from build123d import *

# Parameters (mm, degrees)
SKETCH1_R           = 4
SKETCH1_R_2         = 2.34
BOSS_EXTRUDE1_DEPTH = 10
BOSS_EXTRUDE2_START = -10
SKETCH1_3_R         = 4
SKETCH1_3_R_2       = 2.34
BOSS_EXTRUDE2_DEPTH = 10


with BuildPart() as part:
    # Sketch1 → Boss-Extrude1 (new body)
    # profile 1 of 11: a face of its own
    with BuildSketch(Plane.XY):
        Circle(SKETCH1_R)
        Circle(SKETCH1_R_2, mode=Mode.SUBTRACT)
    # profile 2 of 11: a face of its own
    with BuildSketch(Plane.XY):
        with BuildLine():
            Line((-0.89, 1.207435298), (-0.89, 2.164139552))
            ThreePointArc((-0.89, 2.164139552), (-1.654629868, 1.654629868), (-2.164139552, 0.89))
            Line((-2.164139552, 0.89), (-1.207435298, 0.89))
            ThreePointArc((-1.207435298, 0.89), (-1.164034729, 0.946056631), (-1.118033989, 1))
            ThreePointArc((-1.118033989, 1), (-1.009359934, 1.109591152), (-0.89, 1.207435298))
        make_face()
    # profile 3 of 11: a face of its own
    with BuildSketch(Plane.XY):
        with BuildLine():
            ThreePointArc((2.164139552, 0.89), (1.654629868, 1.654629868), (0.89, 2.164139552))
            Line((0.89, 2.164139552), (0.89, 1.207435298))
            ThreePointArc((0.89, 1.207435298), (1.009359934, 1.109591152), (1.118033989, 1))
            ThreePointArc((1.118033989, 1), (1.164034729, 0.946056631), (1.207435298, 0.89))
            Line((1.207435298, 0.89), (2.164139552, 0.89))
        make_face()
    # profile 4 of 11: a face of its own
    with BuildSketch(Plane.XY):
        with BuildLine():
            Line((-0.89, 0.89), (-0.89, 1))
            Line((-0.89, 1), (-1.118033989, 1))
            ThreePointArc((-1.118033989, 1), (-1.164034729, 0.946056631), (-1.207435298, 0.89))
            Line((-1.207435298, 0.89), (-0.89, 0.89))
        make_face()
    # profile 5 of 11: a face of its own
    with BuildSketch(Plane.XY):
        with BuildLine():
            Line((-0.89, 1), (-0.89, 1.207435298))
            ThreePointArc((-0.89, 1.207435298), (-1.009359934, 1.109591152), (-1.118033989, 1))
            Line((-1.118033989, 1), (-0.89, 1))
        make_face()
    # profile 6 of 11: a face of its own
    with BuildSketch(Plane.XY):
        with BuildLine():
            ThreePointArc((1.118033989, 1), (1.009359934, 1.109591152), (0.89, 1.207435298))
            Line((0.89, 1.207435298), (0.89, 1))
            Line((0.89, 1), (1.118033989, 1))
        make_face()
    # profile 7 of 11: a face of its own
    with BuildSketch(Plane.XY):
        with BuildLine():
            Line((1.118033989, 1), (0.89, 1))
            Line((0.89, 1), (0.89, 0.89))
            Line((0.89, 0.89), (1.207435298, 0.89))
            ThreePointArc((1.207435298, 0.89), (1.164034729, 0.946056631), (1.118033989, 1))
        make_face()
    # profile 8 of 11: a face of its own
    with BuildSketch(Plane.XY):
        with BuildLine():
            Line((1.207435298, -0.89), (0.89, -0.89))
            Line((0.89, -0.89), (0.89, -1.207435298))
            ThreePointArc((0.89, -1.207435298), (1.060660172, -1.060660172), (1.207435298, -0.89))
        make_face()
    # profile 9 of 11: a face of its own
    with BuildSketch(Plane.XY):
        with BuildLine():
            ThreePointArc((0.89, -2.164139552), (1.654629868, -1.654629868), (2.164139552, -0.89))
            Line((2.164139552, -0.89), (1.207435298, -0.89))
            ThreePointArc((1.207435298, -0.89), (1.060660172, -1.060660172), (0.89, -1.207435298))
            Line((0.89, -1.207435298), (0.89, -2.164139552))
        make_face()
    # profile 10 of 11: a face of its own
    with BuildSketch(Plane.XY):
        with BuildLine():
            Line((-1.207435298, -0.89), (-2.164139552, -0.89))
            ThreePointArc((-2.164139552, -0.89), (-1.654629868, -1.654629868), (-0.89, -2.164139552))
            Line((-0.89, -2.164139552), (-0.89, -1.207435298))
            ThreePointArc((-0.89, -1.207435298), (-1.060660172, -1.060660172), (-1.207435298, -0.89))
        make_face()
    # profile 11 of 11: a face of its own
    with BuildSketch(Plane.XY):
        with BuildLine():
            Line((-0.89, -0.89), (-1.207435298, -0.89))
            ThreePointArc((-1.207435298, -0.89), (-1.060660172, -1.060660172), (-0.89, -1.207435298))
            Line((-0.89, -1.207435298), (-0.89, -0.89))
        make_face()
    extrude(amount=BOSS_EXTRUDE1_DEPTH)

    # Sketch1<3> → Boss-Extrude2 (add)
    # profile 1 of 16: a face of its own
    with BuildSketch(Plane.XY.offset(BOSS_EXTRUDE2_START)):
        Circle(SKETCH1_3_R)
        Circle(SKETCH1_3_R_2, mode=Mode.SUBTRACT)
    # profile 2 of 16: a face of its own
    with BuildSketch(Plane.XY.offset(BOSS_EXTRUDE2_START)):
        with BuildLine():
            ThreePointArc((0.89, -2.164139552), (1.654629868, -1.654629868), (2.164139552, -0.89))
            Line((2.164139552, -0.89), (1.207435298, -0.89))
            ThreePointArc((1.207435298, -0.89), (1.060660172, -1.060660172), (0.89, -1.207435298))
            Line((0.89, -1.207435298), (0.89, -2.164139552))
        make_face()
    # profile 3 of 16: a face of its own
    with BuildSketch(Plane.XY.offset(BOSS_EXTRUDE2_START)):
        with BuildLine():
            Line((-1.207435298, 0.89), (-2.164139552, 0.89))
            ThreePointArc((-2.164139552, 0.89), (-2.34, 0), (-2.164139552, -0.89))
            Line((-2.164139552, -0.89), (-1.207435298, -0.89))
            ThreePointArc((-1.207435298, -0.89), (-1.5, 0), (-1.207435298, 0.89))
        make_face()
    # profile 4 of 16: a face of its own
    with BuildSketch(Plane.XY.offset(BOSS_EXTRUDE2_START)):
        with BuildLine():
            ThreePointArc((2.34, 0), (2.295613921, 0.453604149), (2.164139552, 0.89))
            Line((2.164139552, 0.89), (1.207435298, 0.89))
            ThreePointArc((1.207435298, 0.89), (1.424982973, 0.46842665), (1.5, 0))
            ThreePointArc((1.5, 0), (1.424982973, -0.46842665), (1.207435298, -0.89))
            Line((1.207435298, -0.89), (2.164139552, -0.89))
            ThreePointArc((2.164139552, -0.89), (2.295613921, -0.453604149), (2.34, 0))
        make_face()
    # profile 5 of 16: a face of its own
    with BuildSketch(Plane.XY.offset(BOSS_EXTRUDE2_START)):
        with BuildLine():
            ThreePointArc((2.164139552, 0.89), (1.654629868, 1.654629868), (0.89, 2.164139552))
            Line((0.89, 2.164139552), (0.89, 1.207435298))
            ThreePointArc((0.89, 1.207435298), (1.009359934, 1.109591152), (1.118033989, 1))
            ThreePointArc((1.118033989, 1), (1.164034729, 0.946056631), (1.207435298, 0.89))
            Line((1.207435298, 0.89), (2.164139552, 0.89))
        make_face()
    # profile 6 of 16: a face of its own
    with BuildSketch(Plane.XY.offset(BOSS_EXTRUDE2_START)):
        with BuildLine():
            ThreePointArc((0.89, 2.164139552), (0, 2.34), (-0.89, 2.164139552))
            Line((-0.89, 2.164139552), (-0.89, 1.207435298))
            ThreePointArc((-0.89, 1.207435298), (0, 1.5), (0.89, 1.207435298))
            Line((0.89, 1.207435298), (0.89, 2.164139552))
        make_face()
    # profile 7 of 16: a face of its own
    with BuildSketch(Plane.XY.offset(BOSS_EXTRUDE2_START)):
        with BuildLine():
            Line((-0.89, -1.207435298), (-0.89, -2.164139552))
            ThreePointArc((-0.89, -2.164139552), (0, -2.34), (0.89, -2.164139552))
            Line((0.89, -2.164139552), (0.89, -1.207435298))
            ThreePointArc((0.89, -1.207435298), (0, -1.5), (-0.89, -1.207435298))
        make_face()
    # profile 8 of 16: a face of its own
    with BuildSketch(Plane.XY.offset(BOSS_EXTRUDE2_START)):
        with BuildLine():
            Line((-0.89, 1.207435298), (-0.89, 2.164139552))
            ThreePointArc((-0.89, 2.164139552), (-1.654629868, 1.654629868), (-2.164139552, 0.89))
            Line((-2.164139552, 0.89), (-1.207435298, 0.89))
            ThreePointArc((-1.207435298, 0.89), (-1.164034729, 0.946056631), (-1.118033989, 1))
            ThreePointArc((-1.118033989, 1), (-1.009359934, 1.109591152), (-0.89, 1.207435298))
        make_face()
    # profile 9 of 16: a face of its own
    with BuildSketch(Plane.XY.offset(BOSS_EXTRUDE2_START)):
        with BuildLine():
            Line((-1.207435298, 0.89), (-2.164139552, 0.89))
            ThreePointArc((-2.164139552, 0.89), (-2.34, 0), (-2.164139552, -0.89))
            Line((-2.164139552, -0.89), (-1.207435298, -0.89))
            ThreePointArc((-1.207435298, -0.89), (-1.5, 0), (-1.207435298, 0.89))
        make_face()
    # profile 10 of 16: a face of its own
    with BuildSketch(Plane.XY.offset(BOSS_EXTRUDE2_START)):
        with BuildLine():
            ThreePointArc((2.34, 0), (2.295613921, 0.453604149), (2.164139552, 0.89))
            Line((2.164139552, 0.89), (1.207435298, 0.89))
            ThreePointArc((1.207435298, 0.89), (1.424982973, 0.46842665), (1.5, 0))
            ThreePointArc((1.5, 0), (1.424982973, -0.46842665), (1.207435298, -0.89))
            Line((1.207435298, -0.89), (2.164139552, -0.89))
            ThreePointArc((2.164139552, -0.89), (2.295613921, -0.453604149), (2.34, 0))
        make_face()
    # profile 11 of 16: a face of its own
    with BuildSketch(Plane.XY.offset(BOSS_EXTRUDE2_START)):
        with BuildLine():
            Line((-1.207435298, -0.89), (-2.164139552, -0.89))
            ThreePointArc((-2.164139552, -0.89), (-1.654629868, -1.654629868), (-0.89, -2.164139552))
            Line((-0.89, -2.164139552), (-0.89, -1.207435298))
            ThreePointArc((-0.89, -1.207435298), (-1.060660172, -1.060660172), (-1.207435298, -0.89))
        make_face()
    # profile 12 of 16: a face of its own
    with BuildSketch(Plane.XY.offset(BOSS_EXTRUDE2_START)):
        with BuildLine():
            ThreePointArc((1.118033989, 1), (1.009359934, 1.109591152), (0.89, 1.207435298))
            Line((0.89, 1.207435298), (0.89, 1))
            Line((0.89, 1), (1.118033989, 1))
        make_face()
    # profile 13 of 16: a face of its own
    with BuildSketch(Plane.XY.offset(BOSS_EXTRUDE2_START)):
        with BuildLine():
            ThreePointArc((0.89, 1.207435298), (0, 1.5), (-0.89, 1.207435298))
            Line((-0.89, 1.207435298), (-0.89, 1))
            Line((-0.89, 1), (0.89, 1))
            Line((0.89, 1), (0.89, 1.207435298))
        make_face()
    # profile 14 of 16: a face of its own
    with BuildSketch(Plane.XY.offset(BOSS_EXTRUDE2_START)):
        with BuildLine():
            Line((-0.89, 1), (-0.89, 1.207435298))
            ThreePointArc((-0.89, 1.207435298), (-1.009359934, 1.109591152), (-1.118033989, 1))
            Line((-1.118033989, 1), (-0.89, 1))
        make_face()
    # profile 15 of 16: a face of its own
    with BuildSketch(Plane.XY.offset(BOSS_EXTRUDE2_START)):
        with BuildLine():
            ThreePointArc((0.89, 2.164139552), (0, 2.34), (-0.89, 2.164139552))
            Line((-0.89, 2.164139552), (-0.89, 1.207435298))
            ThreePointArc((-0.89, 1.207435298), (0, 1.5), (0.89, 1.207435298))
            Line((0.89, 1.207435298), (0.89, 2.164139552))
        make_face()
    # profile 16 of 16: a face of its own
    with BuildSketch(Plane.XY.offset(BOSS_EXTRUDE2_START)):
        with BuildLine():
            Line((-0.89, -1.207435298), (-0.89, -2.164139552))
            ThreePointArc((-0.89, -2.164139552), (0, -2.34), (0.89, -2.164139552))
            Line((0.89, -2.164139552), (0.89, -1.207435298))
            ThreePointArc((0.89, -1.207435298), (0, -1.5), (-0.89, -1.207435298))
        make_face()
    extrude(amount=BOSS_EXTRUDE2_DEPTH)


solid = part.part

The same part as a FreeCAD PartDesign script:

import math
import FreeCAD as App
import Part
import Sketcher
from FreeCAD import Vector

doc = App.newDocument("Part")
body = doc.addObject("PartDesign::Body", "Body")

# Sketch on XY plane
sketch1 = body.newObject("Sketcher::SketchObject", "Sketch")
sketch1.AttachmentSupport = (doc.getObject("XY_Plane"), [""])
sketch1.MapMode = "FlatFace"
sketch1.addGeometry([
    Part.Circle(Vector(0, 0, 0), Vector(0, 0, 1), 4),  # 0
    Part.ArcOfCircle(Part.Circle(Vector(0, 0, 0), Vector(0, 0, 1), 2.3), math.radians(-22), math.radians(22)),  # 1
    Part.LineSegment(Vector(2.2, -0.9, 0), Vector(0.9, -0.9, 0)),  # 2
    Part.LineSegment(Vector(0.9, -0.9, 0), Vector(0.9, -2.2, 0)),  # 3
    Part.ArcOfCircle(Part.Circle(Vector(0, 0, 0), Vector(0, 0, 1), 2.3), math.radians(-112), math.radians(-68)),  # 4
    Part.LineSegment(Vector(-0.9, -2.2, 0), Vector(-0.9, -0.9, 0)),  # 5
    Part.LineSegment(Vector(-0.9, -0.9, 0), Vector(-2.2, -0.9, 0)),  # 6
    Part.ArcOfCircle(Part.Circle(Vector(0, 0, 0), Vector(0, 0, 1), 2.3), math.radians(158), math.radians(202)),  # 7
    Part.LineSegment(Vector(-2.2, 0.9, 0), Vector(-0.9, 0.9, 0)),  # 8
    Part.LineSegment(Vector(-0.9, 0.9, 0), Vector(-0.9, 2.2, 0)),  # 9
    Part.ArcOfCircle(Part.Circle(Vector(0, 0, 0), Vector(0, 0, 1), 2.3), math.radians(68), math.radians(112)),  # 10
    Part.LineSegment(Vector(0.9, 2.2, 0), Vector(0.9, 0.9, 0)),  # 11
    Part.LineSegment(Vector(0.9, 0.9, 0), Vector(2.2, 0.9, 0)),  # 12
], False)
sketch1.addConstraint([
    Sketcher.Constraint("Coincident", 1, 1, 2, 1),
    Sketcher.Constraint("Coincident", 2, 2, 3, 1),
    Sketcher.Constraint("Coincident", 3, 2, 4, 2),
    Sketcher.Constraint("Coincident", 4, 1, 5, 1),
    Sketcher.Constraint("Coincident", 5, 2, 6, 1),
    Sketcher.Constraint("Coincident", 6, 2, 7, 2),
    Sketcher.Constraint("Coincident", 7, 1, 8, 1),
    Sketcher.Constraint("Coincident", 8, 2, 9, 1),
    Sketcher.Constraint("Coincident", 9, 2, 10, 2),
    Sketcher.Constraint("Coincident", 10, 1, 11, 1),
    Sketcher.Constraint("Coincident", 11, 2, 12, 1),
    Sketcher.Constraint("Coincident", 12, 2, 1, 2),
    Sketcher.Constraint("Horizontal", 2),
    Sketcher.Constraint("Vertical", 3),
    Sketcher.Constraint("Vertical", 5),
    Sketcher.Constraint("Horizontal", 6),
    Sketcher.Constraint("Horizontal", 8),
    Sketcher.Constraint("Vertical", 9),
    Sketcher.Constraint("Vertical", 11),
    Sketcher.Constraint("Horizontal", 12),
    Sketcher.Constraint("Coincident", 0, 3, -1, 1),
    Sketcher.Constraint("Coincident", 1, 3, -1, 1),
    Sketcher.Constraint("Coincident", 4, 3, -1, 1),
    Sketcher.Constraint("Coincident", 7, 3, -1, 1),
    Sketcher.Constraint("Coincident", 10, 3, -1, 1),
    Sketcher.Constraint("Equal", 1, 4),
    Sketcher.Constraint("Equal", 4, 7),
    Sketcher.Constraint("Equal", 7, 10),
    Sketcher.Constraint("Symmetric", 2, 2, 8, 2, -1, 1),
    Sketcher.Constraint("Symmetric", 5, 2, 11, 2, -1, 1),
    Sketcher.Constraint("Symmetric", 2, 2, 5, 2, -2),
    Sketcher.Constraint("Equal", 12, 3),
    Sketcher.Constraint("Diameter", 0, 8.0),
    Sketcher.Constraint("Radius", 1, 2.34),
    Sketcher.Constraint("DistanceY", 1, 1, -1, 1, 0.89),
])
pad1 = body.newObject("PartDesign::Pad", "Pad")
pad1.Profile = sketch1
pad1.Length = 10

# Sketch on XY plane
sketch2 = body.newObject("Sketcher::SketchObject", "Sketch001")
sketch2.AttachmentSupport = (doc.getObject("XY_Plane"), [""])
sketch2.MapMode = "FlatFace"
sketch2.AttachmentOffset = App.Placement(Vector(0, 0, -10), App.Rotation())
sketch2.addGeometry([
    Part.Circle(Vector(0, 0, 0), Vector(0, 0, 1), 4),  # 0
    Part.ArcOfCircle(Part.Circle(Vector(0, 0, 0), Vector(0, 0, 1), 1.5), math.radians(0), math.radians(36)),  # 1
    Part.ArcOfCircle(Part.Circle(Vector(0, 0, 0), Vector(0, 0, 1), 1.5), math.radians(-36), math.radians(0)),  # 2
    Part.ArcOfCircle(Part.Circle(Vector(0, 0, 0), Vector(0, 0, 1), 1.5), math.radians(-53.61), math.radians(-36.39)),  # 3
    Part.ArcOfCircle(Part.Circle(Vector(0, 0, 0), Vector(0, 0, 1), 1.5), math.radians(-126), math.radians(-54)),  # 4
    Part.ArcOfCircle(Part.Circle(Vector(0, 0, 0), Vector(0, 0, 1), 1.5), math.radians(-143.61), math.radians(-126.39)),  # 5
    Part.ArcOfCircle(Part.Circle(Vector(0, 0, 0), Vector(0, 0, 1), 1.5), math.radians(144), math.radians(216)),  # 6
    Part.ArcOfCircle(Part.Circle(Vector(0, 0, 0), Vector(0, 0, 1), 1.5), math.radians(138.19), math.radians(143.61)),  # 7
    Part.LineSegment(Vector(-1.12, 1, 0), Vector(1.12, 1, 0)),  # 8
    Part.ArcOfCircle(Part.Circle(Vector(0, 0, 0), Vector(0, 0, 1), 1.5), math.radians(36.39), math.radians(41.81)),  # 9
], False)
sketch2.addConstraint([
    Sketcher.Constraint("Tangent", 1, 1, 2, 2),
    Sketcher.Constraint("Tangent", 2, 1, 3, 2),
    Sketcher.Constraint("Tangent", 3, 1, 4, 2),
    Sketcher.Constraint("Tangent", 4, 1, 5, 2),
    Sketcher.Constraint("Tangent", 5, 1, 6, 2),
    Sketcher.Constraint("Tangent", 6, 1, 7, 2),
    Sketcher.Constraint("Coincident", 7, 1, 8, 1),
    Sketcher.Constraint("Coincident", 8, 2, 9, 2),
    Sketcher.Constraint("Tangent", 9, 1, 1, 2),
    Sketcher.Constraint("Horizontal", 8),
    Sketcher.Constraint("Coincident", 0, 3, -1, 1),
    Sketcher.Constraint("Coincident", 1, 3, -1, 1),
    Sketcher.Constraint("Coincident", 3, 3, -1, 1),
    Sketcher.Constraint("Coincident", 5, 3, -1, 1),
    Sketcher.Constraint("Coincident", 7, 3, -1, 1),
    Sketcher.Constraint("Equal", 7, 9),
    Sketcher.Constraint("PointOnObject", 1, 1, -1),
    Sketcher.Constraint("Horizontal", 3, 1, 4, 1),
    Sketcher.Constraint("Horizontal", 2, 1, 5, 1),
    Sketcher.Constraint("Horizontal", 6, 1, 9, 1),
    Sketcher.Constraint("Vertical", 5, 1, 6, 1),
    Sketcher.Constraint("Diameter", 0, 8.0),
    Sketcher.Constraint("Radius", 1, 1.5),
    Sketcher.Constraint("DistanceY", -1, 1, 7, 1, 1.0),
    Sketcher.Constraint("DistanceY", 2, 1, -1, 1, 0.89),
    Sketcher.Constraint("DistanceX", -1, 1, 3, 1, 0.89),
])
pad2 = body.newObject("PartDesign::Pad", "Pad001")
pad2.Profile = sketch2
pad2.Length = 10

doc.recompute()
